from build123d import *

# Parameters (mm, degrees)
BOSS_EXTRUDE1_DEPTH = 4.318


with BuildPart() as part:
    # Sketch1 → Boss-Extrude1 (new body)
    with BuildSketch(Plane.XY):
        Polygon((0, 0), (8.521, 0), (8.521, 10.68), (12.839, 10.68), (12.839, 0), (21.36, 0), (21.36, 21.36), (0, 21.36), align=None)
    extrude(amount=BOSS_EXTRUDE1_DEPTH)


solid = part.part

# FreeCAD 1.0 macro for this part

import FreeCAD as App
import Part
import Sketcher
Q = App.Units.Quantity

doc = App.newDocument("Part")
params = doc.addObject("Spreadsheet::Sheet", "Params")
for row, (alias, value) in enumerate([
    ("sketch1_width", "0.17 in"),
    ("pad1_length", "0.17 in"),
], start=1):
    params.set(f"A{row}", alias)
    params.set(f"B{row}", "=" + value)
    params.setAlias(f"B{row}", alias)

body = doc.addObject("PartDesign::Body", "Body")

# Sketch on XY plane
sketch1 = body.newObject("Sketcher::SketchObject", "Sketch")
sketch1.AttachmentSupport = (doc.getObject("XY_Plane"), [""])
sketch1.MapMode = "FlatFace"
sketch1.addGeometry([
    Part.LineSegment(App.Vector(0, 0, 0), App.Vector(8.5, 0, 0)),  # 0
    Part.LineSegment(App.Vector(8.5, 0, 0), App.Vector(8.5, 10.7, 0)),  # 1
    Part.LineSegment(App.Vector(8.5, 10.7, 0), App.Vector(12.8, 10.7, 0)),  # 2
    Part.LineSegment(App.Vector(12.8, 10.7, 0), App.Vector(12.8, 0, 0)),  # 3
    Part.LineSegment(App.Vector(12.8, 0, 0), App.Vector(21.4, 0, 0)),  # 4
    Part.LineSegment(App.Vector(21.4, 0, 0), App.Vector(21.4, 21.4, 0)),  # 5
    Part.LineSegment(App.Vector(21.4, 21.4, 0), App.Vector(0, 21.4, 0)),  # 6
    Part.LineSegment(App.Vector(0, 21.4, 0), App.Vector(0, 0, 0)),  # 7
], False)
sketch1.addConstraint([
    Sketcher.Constraint("Coincident", 0, 2, 1, 1),
    Sketcher.Constraint("Coincident", 1, 2, 2, 1),
    Sketcher.Constraint("Coincident", 2, 2, 3, 1),
    Sketcher.Constraint("Coincident", 3, 2, 4, 1),
    Sketcher.Constraint("Coincident", 4, 2, 5, 1),
    Sketcher.Constraint("Coincident", 5, 2, 6, 1),
    Sketcher.Constraint("Coincident", 6, 2, 7, 1),
    Sketcher.Constraint("Coincident", 7, 2, 0, 1),
    Sketcher.Constraint("Horizontal", 0),
    Sketcher.Constraint("Vertical", 1),
    Sketcher.Constraint("Horizontal", 2),
    Sketcher.Constraint("Vertical", 3),
    Sketcher.Constraint("Horizontal", 4),
    Sketcher.Constraint("Vertical", 5),
    Sketcher.Constraint("Horizontal", 6),
    Sketcher.Constraint("Vertical", 7),
    Sketcher.Constraint("Coincident", 7, 2, -1, 1),
    Sketcher.Constraint("PointOnObject", 3, 2, -1),
    Sketcher.Constraint("Equal", 0, 4),
    Sketcher.Constraint("Equal", 6, 5),
    Sketcher.Constraint("DistanceX", 2, 1, 2, 2, Q("0.17 in")),
    Sketcher.Constraint("DistanceX", 0, 1, 0, 2, Q("8.521 mm")),
    Sketcher.Constraint("DistanceY", 1, 1, 1, 2, Q("10.68 mm")),
])
sketch1.setExpression("Constraints[20]", "Params.sketch1_width")
pad1 = body.newObject("PartDesign::Pad", "Pad")
pad1.Profile = sketch1
pad1.setExpression("Length", "Params.pad1_length")

doc.recompute()
